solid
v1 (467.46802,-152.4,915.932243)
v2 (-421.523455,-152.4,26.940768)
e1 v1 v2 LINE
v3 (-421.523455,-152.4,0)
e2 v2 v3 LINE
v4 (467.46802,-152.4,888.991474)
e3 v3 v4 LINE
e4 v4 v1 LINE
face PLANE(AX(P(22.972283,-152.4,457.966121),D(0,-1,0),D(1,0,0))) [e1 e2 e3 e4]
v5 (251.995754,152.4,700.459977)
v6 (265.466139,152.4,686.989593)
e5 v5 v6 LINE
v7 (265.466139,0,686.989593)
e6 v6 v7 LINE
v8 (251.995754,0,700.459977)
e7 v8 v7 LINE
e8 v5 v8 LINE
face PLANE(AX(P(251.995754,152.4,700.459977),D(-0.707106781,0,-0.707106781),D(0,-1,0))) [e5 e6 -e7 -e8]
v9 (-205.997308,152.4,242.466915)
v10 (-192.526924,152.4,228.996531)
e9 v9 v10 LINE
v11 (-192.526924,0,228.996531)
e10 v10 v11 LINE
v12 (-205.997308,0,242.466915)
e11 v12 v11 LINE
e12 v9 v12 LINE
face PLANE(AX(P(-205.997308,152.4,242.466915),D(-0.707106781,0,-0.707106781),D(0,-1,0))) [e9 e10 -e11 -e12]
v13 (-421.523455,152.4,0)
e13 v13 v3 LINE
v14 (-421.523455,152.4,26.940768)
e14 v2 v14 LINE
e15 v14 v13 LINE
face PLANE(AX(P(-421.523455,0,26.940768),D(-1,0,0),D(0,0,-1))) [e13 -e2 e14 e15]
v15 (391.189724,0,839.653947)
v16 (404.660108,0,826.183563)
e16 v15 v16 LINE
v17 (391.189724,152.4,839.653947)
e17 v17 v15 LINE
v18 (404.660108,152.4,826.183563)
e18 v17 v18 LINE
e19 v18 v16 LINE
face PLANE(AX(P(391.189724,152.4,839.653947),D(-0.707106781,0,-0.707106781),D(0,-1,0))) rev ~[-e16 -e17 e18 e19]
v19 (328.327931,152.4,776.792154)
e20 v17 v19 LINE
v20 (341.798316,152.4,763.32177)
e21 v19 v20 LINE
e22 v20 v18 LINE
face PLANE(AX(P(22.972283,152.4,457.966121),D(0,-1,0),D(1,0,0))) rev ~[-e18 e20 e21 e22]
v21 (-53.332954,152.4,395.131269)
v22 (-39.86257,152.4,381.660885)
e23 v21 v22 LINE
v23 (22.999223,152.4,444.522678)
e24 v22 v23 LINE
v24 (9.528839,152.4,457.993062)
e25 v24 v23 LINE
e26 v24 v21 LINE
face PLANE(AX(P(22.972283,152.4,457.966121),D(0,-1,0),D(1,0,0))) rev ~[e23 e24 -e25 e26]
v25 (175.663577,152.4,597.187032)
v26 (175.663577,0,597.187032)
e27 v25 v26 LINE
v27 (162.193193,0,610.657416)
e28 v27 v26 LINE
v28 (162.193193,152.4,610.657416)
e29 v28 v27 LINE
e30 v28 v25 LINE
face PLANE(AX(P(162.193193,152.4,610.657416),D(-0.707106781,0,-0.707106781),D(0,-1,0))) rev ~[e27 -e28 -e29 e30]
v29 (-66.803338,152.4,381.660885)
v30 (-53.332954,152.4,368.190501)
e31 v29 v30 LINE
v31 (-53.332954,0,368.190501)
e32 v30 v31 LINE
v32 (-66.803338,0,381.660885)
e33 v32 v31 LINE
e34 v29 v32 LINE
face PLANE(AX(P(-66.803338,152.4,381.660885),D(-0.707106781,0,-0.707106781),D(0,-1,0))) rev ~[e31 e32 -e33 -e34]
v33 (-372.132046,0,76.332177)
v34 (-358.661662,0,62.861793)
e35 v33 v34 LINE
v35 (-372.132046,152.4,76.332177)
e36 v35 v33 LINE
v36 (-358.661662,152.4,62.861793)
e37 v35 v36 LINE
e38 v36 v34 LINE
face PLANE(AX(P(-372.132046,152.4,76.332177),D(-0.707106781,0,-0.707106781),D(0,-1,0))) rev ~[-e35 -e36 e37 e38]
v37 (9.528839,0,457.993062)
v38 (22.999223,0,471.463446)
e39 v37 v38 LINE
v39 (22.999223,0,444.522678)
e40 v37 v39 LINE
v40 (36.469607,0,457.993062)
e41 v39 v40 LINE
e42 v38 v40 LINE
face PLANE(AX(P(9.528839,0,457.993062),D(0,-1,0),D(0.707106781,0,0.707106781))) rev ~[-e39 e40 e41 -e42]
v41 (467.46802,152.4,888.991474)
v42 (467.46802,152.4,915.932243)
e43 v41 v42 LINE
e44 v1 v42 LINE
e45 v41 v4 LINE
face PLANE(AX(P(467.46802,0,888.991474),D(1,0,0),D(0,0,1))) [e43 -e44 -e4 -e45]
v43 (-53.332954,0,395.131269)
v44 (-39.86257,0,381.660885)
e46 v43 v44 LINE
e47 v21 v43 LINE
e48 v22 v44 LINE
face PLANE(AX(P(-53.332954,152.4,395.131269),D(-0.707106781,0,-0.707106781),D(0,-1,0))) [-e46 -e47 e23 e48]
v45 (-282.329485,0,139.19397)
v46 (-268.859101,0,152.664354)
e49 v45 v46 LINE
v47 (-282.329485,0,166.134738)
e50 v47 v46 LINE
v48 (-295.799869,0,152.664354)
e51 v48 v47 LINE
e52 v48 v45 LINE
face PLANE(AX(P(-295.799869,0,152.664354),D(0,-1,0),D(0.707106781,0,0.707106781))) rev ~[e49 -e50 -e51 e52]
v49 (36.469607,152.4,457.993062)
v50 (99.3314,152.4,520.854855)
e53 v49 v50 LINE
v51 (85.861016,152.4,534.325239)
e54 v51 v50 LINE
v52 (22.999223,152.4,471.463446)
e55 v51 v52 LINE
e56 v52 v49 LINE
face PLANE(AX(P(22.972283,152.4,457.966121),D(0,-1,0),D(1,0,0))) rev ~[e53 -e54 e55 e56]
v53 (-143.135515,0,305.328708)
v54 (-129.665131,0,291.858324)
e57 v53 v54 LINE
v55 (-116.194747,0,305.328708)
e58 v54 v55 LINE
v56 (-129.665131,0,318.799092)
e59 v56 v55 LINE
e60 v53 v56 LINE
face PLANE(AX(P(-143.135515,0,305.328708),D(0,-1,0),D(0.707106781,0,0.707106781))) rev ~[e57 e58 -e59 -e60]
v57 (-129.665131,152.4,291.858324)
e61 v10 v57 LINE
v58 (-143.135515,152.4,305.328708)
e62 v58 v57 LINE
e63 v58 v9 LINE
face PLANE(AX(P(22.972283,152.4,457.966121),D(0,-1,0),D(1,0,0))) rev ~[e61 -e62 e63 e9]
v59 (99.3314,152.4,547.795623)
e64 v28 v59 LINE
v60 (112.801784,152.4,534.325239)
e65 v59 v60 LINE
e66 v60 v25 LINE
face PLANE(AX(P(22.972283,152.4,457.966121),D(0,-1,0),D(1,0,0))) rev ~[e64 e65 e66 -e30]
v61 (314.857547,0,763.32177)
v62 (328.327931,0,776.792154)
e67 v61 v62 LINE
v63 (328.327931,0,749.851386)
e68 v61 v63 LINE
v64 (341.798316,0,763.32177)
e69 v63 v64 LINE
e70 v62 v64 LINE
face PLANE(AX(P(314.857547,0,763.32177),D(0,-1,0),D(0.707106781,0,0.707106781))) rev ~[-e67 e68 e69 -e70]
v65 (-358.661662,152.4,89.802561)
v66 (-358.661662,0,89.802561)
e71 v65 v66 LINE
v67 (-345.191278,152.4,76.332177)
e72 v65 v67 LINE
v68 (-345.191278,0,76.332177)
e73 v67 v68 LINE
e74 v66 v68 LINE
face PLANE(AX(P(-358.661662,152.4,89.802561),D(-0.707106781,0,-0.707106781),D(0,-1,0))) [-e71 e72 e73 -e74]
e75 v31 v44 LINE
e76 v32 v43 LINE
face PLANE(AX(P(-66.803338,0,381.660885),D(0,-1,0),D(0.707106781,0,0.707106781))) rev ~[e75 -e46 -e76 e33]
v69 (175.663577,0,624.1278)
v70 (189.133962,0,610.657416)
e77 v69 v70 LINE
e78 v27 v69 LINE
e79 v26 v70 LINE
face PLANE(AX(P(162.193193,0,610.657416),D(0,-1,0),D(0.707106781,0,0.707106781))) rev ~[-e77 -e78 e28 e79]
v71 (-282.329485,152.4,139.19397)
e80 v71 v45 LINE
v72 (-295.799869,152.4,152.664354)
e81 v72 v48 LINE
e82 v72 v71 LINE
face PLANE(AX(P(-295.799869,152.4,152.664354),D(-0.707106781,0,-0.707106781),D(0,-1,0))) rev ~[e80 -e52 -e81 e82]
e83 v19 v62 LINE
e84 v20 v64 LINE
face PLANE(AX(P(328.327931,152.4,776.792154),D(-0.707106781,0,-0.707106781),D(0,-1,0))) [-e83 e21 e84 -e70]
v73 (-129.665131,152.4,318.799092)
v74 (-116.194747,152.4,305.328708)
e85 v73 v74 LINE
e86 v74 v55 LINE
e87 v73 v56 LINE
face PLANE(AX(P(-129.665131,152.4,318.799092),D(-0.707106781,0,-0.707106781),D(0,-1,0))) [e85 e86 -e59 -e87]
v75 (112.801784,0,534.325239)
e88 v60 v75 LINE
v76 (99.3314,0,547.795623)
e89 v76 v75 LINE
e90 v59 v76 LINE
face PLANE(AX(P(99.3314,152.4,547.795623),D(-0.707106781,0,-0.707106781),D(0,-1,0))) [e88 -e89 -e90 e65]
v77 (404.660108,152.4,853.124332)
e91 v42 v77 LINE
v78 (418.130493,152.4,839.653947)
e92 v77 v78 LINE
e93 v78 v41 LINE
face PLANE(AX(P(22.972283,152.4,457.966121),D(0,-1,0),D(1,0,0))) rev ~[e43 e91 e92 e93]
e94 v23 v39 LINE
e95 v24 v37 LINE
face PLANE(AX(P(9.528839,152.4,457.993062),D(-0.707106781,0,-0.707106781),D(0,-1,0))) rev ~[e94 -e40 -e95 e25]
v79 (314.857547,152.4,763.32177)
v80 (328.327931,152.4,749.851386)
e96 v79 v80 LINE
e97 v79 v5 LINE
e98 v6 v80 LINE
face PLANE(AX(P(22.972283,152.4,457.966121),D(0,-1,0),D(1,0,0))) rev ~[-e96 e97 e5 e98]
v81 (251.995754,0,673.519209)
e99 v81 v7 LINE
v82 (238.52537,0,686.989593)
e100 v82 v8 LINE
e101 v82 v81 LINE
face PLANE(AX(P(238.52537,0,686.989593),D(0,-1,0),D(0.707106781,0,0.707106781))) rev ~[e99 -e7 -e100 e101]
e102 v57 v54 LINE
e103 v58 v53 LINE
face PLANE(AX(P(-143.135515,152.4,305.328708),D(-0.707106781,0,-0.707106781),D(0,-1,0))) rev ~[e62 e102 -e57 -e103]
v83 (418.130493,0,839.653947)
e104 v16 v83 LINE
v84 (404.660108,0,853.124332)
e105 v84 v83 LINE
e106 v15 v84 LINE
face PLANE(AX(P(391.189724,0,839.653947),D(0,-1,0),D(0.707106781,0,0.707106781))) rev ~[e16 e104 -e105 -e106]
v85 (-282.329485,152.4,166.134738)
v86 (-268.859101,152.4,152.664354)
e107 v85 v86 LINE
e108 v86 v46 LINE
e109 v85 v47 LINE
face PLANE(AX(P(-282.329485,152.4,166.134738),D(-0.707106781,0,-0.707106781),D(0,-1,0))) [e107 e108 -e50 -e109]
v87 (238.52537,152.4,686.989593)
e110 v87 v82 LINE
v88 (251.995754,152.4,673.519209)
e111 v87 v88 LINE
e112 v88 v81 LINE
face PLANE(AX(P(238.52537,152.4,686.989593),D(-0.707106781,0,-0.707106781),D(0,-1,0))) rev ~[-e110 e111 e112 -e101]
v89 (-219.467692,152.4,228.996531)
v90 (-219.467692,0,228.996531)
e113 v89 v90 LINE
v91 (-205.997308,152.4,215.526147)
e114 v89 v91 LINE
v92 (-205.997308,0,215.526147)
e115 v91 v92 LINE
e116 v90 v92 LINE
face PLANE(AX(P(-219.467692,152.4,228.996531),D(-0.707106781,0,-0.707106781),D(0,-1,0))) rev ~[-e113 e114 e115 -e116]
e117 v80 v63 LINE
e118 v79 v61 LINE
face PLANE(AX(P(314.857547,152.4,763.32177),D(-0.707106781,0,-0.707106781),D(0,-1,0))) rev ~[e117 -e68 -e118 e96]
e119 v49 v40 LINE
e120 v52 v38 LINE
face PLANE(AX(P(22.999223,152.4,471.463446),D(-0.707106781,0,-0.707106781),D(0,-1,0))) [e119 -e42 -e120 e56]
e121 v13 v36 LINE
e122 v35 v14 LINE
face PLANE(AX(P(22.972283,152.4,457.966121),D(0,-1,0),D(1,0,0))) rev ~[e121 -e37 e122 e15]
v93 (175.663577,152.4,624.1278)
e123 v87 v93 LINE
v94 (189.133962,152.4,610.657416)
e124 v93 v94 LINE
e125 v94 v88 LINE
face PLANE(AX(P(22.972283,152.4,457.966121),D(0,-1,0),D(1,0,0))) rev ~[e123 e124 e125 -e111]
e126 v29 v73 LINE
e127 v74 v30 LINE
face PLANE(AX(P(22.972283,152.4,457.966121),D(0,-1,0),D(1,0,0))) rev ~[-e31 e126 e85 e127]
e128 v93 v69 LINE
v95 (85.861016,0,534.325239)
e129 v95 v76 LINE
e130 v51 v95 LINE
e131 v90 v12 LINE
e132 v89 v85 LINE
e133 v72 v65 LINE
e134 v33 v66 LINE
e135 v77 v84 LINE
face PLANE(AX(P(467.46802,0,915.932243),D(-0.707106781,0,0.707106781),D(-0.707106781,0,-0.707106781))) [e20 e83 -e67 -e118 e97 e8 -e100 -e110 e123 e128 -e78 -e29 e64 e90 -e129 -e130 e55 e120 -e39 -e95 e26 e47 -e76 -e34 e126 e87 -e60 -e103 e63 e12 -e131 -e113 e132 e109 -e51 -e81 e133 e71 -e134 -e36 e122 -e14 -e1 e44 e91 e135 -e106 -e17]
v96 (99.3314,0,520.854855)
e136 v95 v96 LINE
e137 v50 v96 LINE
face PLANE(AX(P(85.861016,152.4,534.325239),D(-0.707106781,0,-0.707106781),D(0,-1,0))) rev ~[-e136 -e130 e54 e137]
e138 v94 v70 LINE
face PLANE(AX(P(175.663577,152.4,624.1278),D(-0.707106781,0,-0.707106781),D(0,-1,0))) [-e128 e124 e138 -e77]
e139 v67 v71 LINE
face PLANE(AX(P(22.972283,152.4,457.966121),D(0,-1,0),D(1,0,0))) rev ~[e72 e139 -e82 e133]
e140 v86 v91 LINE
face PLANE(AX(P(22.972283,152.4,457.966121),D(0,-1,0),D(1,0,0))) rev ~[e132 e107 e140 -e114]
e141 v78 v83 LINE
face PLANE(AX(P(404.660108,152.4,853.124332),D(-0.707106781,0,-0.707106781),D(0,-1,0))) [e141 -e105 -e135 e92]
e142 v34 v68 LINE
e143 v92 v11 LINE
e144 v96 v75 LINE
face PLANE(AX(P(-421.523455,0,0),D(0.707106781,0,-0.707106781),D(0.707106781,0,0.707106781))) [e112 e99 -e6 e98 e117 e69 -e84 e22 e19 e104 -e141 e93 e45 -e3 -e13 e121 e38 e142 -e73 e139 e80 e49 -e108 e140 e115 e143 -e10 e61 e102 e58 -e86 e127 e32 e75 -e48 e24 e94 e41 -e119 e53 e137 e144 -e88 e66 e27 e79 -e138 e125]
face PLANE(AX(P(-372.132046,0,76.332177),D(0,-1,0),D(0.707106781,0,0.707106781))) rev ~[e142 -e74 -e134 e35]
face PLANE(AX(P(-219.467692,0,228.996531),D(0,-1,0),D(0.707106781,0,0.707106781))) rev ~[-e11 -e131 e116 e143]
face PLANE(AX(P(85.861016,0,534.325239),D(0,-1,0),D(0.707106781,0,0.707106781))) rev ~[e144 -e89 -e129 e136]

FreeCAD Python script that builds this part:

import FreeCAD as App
import Part
import Sketcher
Q = App.Units.Quantity


def add_polygon(sketch, points):
    """Adds a closed chain of lines whose ends are joined by coincident constraints."""
    first, n = sketch.GeometryCount, len(points)
    for a, b in zip(points, points[1:] + points[:1]):
        sketch.addGeometry(Part.LineSegment(App.Vector(*a, 0), App.Vector(*b, 0)), False)
    for i in range(n):
        sketch.addConstraint(Sketcher.Constraint("Coincident", first + i, 2, first + (i + 1) % n, 1))

doc = App.newDocument("Part")
body = doc.addObject("PartDesign::Body", "Body")

# Sketch on XZ plane
sketch1 = body.newObject("Sketcher::SketchObject", "Sketch")
sketch1.AttachmentSupport = (doc.getObject("XZ_Plane"), [""])
sketch1.MapMode = "FlatFace"
add_polygon(sketch1, [(-421.523455, 26.940768), (-421.523455, 0), (467.46802, 888.991474), (467.46802, 915.932243)])  # lines 0-3
sketch1.addConstraint(Sketcher.Constraint("Vertical", 0))
sketch1.addConstraint(Sketcher.Constraint("Vertical", 2))
sketch1.addConstraint(Sketcher.Constraint("PointOnObject", 0, 2, -1))
sketch1.addConstraint(Sketcher.Constraint("Parallel", 1, 3))
sketch1.addConstraint(Sketcher.Constraint("Angle", 1, Q("45 deg")))
sketch1.addConstraint(Sketcher.Constraint("Distance", 1, Q("49.497 in")))
sketch1.addConstraint(Sketcher.Constraint("DistanceY", 0, 2, 0, 1, Q("26.940768 mm")))
sketch1.addConstraint(Sketcher.Constraint("DistanceX", -1, 1, 1, 2, Q("467.46802 mm")))
pad1 = body.newObject("PartDesign::Pad", "Pad")
pad1.Profile = sketch1
pad1.Length = Q("12 in")
pad1.Midplane = True

# Sketch on an angled plane
sketch2 = body.newObject("Sketcher::SketchObject", "Sketch001")
sketch2.Placement = App.Placement(App.Vector(-224.232112, 0, 224.232112), App.Rotation(App.Vector(0, -1, 0), App.Vector(0.707106781, 0, 0.707106781), App.Vector(-0.707106781, 0, 0.707106781), "ZXY"))
add_polygon(sketch2, [(-152.4, -190.112093), (-152.4, -209.162093), (0, -209.162093), (0, -190.112093)])  # lines 0-3
add_polygon(sketch2, [(-152.4, -82.162093), (-152.4, -101.212093), (0, -101.212093), (0, -82.162093)])  # lines 4-7
add_polygon(sketch2, [(-152.4, 25.787907), (-152.4, 6.737907), (0, 6.737907), (0, 25.787907)])  # lines 8-11
add_polygon(sketch2, [(-152.4, 133.737907), (-152.4, 114.687907), (0, 114.687907), (0, 133.737907)])  # lines 12-15
add_polygon(sketch2, [(-152.4, 241.687907), (-152.4, 222.637907), (0, 222.637907), (0, 241.687907)])  # lines 16-19
add_polygon(sketch2, [(-152.4, 349.637907), (-152.4, 330.587907), (0, 330.587907), (0, 349.637907)])  # lines 20-23
add_polygon(sketch2, [(-152.4, 457.587906), (-152.4, 438.537907), (0, 438.537907), (0, 457.587906)])  # lines 24-27
add_polygon(sketch2, [(-152.4, 565.537906), (-152.4, 546.487906), (0, 546.487906), (0, 565.537906)])  # lines 28-31
add_polygon(sketch2, [(-152.4, 673.487906), (-152.4, 654.437906), (0, 654.437906), (0, 673.487906)])  # lines 32-35
add_polygon(sketch2, [(-152.4, 781.437906), (-152.4, 762.387906), (0, 762.387906), (0, 781.437906)])  # lines 36-39
add_polygon(sketch2, [(-152.4, 889.387906), (-152.4, 870.337906), (0, 870.337906), (0, 889.387906)])  # lines 40-43
sketch2.addConstraint(Sketcher.Constraint("Vertical", 0))
sketch2.addConstraint(Sketcher.Constraint("Horizontal", 1))
sketch2.addConstraint(Sketcher.Constraint("Vertical", 2))
sketch2.addConstraint(Sketcher.Constraint("Horizontal", 3))
sketch2.addConstraint(Sketcher.Constraint("Vertical", 4))
sketch2.addConstraint(Sketcher.Constraint("Horizontal", 5))
sketch2.addConstraint(Sketcher.Constraint("Vertical", 6))
sketch2.addConstraint(Sketcher.Constraint("Horizontal", 7))
sketch2.addConstraint(Sketcher.Constraint("Vertical", 8))
sketch2.addConstraint(Sketcher.Constraint("Horizontal", 9))
sketch2.addConstraint(Sketcher.Constraint("Vertical", 10))
sketch2.addConstraint(Sketcher.Constraint("Horizontal", 11))
sketch2.addConstraint(Sketcher.Constraint("Vertical", 12))
sketch2.addConstraint(Sketcher.Constraint("Horizontal", 13))
sketch2.addConstraint(Sketcher.Constraint("Vertical", 14))
sketch2.addConstraint(Sketcher.Constraint("Horizontal", 15))
sketch2.addConstraint(Sketcher.Constraint("Vertical", 16))
sketch2.addConstraint(Sketcher.Constraint("Horizontal", 17))
sketch2.addConstraint(Sketcher.Constraint("Vertical", 18))
sketch2.addConstraint(Sketcher.Constraint("Horizontal", 19))
sketch2.addConstraint(Sketcher.Constraint("Vertical", 20))
sketch2.addConstraint(Sketcher.Constraint("Horizontal", 21))
sketch2.addConstraint(Sketcher.Constraint("Vertical", 22))
sketch2.addConstraint(Sketcher.Constraint("Horizontal", 23))
sketch2.addConstraint(Sketcher.Constraint("Vertical", 24))
sketch2.addConstraint(Sketcher.Constraint("Horizontal", 25))
sketch2.addConstraint(Sketcher.Constraint("Vertical", 26))
sketch2.addConstraint(Sketcher.Constraint("Horizontal", 27))
sketch2.addConstraint(Sketcher.Constraint("Vertical", 28))
sketch2.addConstraint(Sketcher.Constraint("Horizontal", 29))
sketch2.addConstraint(Sketcher.Constraint("Vertical", 30))
sketch2.addConstraint(Sketcher.Constraint("Horizontal", 31))
sketch2.addConstraint(Sketcher.Constraint("Vertical", 32))
sketch2.addConstraint(Sketcher.Constraint("Horizontal", 33))
sketch2.addConstraint(Sketcher.Constraint("Vertical", 34))
sketch2.addConstraint(Sketcher.Constraint("Horizontal", 35))
sketch2.addConstraint(Sketcher.Constraint("Vertical", 36))
sketch2.addConstraint(Sketcher.Constraint("Horizontal", 37))
sketch2.addConstraint(Sketcher.Constraint("Vertical", 38))
sketch2.addConstraint(Sketcher.Constraint("Horizontal", 39))
sketch2.addConstraint(Sketcher.Constraint("Vertical", 40))
sketch2.addConstraint(Sketcher.Constraint("Horizontal", 41))
sketch2.addConstraint(Sketcher.Constraint("Vertical", 42))
sketch2.addConstraint(Sketcher.Constraint("Horizontal", 43))
sketch2.addConstraint(Sketcher.Constraint("PointOnObject", 1, 2, -2))
sketch2.addConstraint(Sketcher.Constraint("PointOnObject", 5, 2, -2))
sketch2.addConstraint(Sketcher.Constraint("PointOnObject", 9, 2, -2))
sketch2.addConstraint(Sketcher.Constraint("PointOnObject", 13, 2, -2))
sketch2.addConstraint(Sketcher.Constraint("PointOnObject", 17, 2, -2))
sketch2.addConstraint(Sketcher.Constraint("PointOnObject", 21, 2, -2))
sketch2.addConstraint(Sketcher.Constraint("PointOnObject", 25, 2, -2))
sketch2.addConstraint(Sketcher.Constraint("PointOnObject", 29, 2, -2))
sketch2.addConstraint(Sketcher.Constraint("PointOnObject", 33, 2, -2))
sketch2.addConstraint(Sketcher.Constraint("PointOnObject", 37, 2, -2))
sketch2.addConstraint(Sketcher.Constraint("PointOnObject", 41, 2, -2))
sketch2.addConstraint(Sketcher.Constraint("Vertical", 3, 2, 4, 2))
sketch2.addConstraint(Sketcher.Constraint("Vertical", 7, 2, 8, 2))
sketch2.addConstraint(Sketcher.Constraint("Vertical", 11, 2, 12, 2))
sketch2.addConstraint(Sketcher.Constraint("Vertical", 15, 2, 16, 2))
sketch2.addConstraint(Sketcher.Constraint("Vertical", 19, 2, 20, 2))
sketch2.addConstraint(Sketcher.Constraint("Vertical", 23, 2, 24, 2))
sketch2.addConstraint(Sketcher.Constraint("Vertical", 27, 2, 28, 2))
sketch2.addConstraint(Sketcher.Constraint("Vertical", 31, 2, 32, 2))
sketch2.addConstraint(Sketcher.Constraint("Vertical", 35, 2, 36, 2))
sketch2.addConstraint(Sketcher.Constraint("Vertical", 39, 2, 40, 2))
sketch2.addConstraint(Sketcher.Constraint("Equal", 2, 4))
sketch2.addConstraint(Sketcher.Constraint("Equal", 6, 8))
sketch2.addConstraint(Sketcher.Constraint("Equal", 10, 12))
sketch2.addConstraint(Sketcher.Constraint("Equal", 14, 16))
sketch2.addConstraint(Sketcher.Constraint("Equal", 18, 20))
sketch2.addConstraint(Sketcher.Constraint("Equal", 22, 24))
sketch2.addConstraint(Sketcher.Constraint("Equal", 26, 28))
sketch2.addConstraint(Sketcher.Constraint("Equal", 30, 32))
sketch2.addConstraint(Sketcher.Constraint("Equal", 34, 36))
sketch2.addConstraint(Sketcher.Constraint("Equal", 38, 40))
sketch2.addConstraint(Sketcher.Constraint("DistanceX", 1, 1, 1, 2, Q("6 in")))
sketch2.addConstraint(Sketcher.Constraint("DistanceY", 1, 2, 6, 2, Q("5 in")))
sketch2.addConstraint(Sketcher.Constraint("DistanceY", 5, 2, 10, 2, Q("5 in")))
sketch2.addConstraint(Sketcher.Constraint("DistanceY", 9, 2, 14, 2, Q("5 in")))
sketch2.addConstraint(Sketcher.Constraint("DistanceY", 13, 2, 18, 2, Q("5 in")))
sketch2.addConstraint(Sketcher.Constraint("DistanceY", 17, 2, 22, 2, Q("5 in")))
sketch2.addConstraint(Sketcher.Constraint("DistanceY", 21, 2, 26, 2, Q("5 in")))
sketch2.addConstraint(Sketcher.Constraint("DistanceY", 25, 2, 30, 2, Q("5 in")))
sketch2.addConstraint(Sketcher.Constraint("DistanceY", 29, 2, 34, 2, Q("5 in")))
sketch2.addConstraint(Sketcher.Constraint("DistanceY", 33, 2, 38, 2, Q("5 in")))
sketch2.addConstraint(Sketcher.Constraint("DistanceY", 37, 2, 42, 2, Q("5 in")))
sketch2.addConstraint(Sketcher.Constraint("DistanceY", 0, 2, 0, 1, Q("0.75 in")))
sketch2.addConstraint(Sketcher.Constraint("DistanceY", 0, 2, -1, 1, Q("209.162093 mm")))
pocket1 = body.newObject("PartDesign::Pocket", "Pocket")
pocket1.Profile = sketch2
pocket1.Length = Q("0.75 in")

doc.recompute()
